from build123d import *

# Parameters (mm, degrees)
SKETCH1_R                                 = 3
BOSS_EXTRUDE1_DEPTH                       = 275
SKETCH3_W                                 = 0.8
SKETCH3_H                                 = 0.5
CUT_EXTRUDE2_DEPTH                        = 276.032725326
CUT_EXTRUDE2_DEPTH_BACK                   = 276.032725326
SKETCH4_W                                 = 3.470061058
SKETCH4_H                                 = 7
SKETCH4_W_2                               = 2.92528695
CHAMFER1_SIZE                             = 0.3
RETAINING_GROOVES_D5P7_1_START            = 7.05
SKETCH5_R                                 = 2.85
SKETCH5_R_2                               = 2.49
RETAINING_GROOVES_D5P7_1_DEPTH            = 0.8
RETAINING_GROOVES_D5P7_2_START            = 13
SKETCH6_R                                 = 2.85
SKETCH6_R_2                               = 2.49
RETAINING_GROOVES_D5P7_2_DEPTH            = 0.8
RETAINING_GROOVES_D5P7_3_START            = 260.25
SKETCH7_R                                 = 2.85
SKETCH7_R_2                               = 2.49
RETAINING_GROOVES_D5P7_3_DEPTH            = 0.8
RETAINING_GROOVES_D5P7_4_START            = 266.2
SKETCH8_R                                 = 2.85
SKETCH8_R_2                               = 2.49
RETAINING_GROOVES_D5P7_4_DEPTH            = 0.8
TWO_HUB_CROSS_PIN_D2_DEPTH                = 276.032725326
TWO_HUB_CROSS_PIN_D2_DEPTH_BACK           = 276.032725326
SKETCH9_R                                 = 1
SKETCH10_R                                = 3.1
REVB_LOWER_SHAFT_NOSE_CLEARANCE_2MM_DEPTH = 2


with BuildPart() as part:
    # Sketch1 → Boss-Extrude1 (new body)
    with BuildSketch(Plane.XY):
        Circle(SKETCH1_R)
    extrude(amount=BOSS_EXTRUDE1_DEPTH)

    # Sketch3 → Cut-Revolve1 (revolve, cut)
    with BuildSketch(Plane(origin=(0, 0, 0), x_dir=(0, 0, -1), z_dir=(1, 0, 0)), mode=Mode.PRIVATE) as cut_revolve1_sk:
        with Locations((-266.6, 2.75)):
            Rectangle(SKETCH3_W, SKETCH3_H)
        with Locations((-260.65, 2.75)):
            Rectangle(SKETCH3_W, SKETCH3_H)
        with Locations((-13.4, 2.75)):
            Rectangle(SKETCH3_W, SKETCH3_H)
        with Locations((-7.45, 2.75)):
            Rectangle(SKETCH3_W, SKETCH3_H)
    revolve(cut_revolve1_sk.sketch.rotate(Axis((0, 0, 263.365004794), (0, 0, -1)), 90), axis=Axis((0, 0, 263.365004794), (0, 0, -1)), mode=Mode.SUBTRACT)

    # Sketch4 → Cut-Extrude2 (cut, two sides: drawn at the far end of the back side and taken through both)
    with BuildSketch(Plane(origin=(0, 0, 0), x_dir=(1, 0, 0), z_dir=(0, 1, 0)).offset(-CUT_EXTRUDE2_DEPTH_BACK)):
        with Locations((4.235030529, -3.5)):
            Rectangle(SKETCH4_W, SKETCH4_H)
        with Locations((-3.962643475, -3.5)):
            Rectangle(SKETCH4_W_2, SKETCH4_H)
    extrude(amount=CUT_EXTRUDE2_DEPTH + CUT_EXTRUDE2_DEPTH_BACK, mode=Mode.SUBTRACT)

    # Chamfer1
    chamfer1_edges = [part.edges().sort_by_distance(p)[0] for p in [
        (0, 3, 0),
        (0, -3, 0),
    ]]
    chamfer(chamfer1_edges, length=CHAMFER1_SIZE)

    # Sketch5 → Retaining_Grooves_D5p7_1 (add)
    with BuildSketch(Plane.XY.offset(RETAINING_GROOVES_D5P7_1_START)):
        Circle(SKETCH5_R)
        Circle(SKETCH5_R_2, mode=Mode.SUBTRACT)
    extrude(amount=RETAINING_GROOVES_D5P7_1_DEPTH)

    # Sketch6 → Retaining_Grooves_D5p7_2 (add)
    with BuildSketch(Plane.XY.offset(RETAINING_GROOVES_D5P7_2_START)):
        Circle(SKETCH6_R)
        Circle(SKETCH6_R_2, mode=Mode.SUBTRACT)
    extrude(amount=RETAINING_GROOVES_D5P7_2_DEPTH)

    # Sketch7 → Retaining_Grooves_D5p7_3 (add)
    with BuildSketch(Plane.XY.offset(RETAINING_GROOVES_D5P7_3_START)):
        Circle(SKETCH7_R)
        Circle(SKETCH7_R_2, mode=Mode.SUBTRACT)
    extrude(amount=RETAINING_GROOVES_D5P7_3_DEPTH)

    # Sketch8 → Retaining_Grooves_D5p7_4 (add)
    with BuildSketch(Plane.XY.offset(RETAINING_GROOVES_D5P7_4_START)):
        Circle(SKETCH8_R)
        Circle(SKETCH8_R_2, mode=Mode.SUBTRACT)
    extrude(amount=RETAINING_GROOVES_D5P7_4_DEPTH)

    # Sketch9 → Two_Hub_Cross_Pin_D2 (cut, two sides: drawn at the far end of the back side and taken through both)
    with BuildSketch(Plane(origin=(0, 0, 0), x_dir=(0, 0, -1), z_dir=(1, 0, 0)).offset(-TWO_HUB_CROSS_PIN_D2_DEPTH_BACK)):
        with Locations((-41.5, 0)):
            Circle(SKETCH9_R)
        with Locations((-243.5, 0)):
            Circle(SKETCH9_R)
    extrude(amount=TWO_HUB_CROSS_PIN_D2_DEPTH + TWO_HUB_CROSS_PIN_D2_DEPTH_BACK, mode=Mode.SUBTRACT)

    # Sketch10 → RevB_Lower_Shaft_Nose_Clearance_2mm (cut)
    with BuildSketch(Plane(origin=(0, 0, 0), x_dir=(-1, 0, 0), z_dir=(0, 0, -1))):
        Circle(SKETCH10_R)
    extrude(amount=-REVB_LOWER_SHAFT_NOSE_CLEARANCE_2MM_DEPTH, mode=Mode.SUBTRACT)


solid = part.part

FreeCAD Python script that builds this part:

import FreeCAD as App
import Part
import Sketcher
from FreeCAD import Vector


def edges_at(feature, points):
    """Names of the edges that pass closest to the given points."""
    edges = feature.Shape.Edges
    near = lambda p: min(range(len(edges)), key=lambda i: edges[i].distToShape(Part.Vertex(*p))[0])
    return sorted({f"Edge{near(p) + 1}" for p in points})

doc = App.newDocument("Part")
body = doc.addObject("PartDesign::Body", "Body")

sketch1 = body.newObject("Sketcher::SketchObject", "Sketch")
sketch1.AttachmentSupport = (doc.getObject("XY_Plane"), [""])
sketch1.MapMode = "FlatFace"
sketch1.addGeometry(Part.Circle(Vector(0, 0, 0), Vector(0, 0, 1), 3), False)
sketch1.addConstraint([
    Sketcher.Constraint("Coincident", 0, 3, -1, 1),
    Sketcher.Constraint("Diameter", 0, 6.0),
])
pad1 = body.newObject("PartDesign::Pad", "Pad")
pad1.Profile = sketch1
pad1.Length = 275

sketch2 = body.newObject("Sketcher::SketchObject", "Sketch001")
sketch2.AttachmentSupport = (doc.getObject("YZ_Plane"), [""])
sketch2.MapMode = "FlatFace"
sketch2.addGeometry([
    Part.LineSegment(Vector(3, 267, 0), Vector(2.5, 267, 0)),
    Part.LineSegment(Vector(2.5, 267, 0), Vector(2.5, 266.2, 0)),
    Part.LineSegment(Vector(2.5, 266.2, 0), Vector(3, 266.2, 0)),
    Part.LineSegment(Vector(3, 266.2, 0), Vector(3, 267, 0)),
    Part.LineSegment(Vector(3, 261.05, 0), Vector(2.5, 261.05, 0)),
    Part.LineSegment(Vector(2.5, 261.05, 0), Vector(2.5, 260.25, 0)),
    Part.LineSegment(Vector(2.5, 260.25, 0), Vector(3, 260.25, 0)),
    Part.LineSegment(Vector(3, 260.25, 0), Vector(3, 261.05, 0)),
    Part.LineSegment(Vector(3, 13.8, 0), Vector(2.5, 13.8, 0)),
    Part.LineSegment(Vector(2.5, 13.8, 0), Vector(2.5, 13, 0)),
    Part.LineSegment(Vector(2.5, 13, 0), Vector(3, 13, 0)),
    Part.LineSegment(Vector(3, 13, 0), Vector(3, 13.8, 0)),
    Part.LineSegment(Vector(3, 7.85, 0), Vector(2.5, 7.85, 0)),
    Part.LineSegment(Vector(2.5, 7.85, 0), Vector(2.5, 7.05, 0)),
    Part.LineSegment(Vector(2.5, 7.05, 0), Vector(3, 7.05, 0)),
    Part.LineSegment(Vector(3, 7.05, 0), Vector(3, 7.85, 0)),
], False)
sketch2.addConstraint([
    Sketcher.Constraint("Coincident", 0, 2, 1, 1),
    Sketcher.Constraint("Coincident", 1, 2, 2, 1),
    Sketcher.Constraint("Coincident", 2, 2, 3, 1),
    Sketcher.Constraint("Coincident", 3, 2, 0, 1),
    Sketcher.Constraint("Coincident", 4, 2, 5, 1),
    Sketcher.Constraint("Coincident", 5, 2, 6, 1),
    Sketcher.Constraint("Coincident", 6, 2, 7, 1),
    Sketcher.Constraint("Coincident", 7, 2, 4, 1),
    Sketcher.Constraint("Coincident", 8, 2, 9, 1),
    Sketcher.Constraint("Coincident", 9, 2, 10, 1),
    Sketcher.Constraint("Coincident", 10, 2, 11, 1),
    Sketcher.Constraint("Coincident", 11, 2, 8, 1),
    Sketcher.Constraint("Coincident", 12, 2, 13, 1),
    Sketcher.Constraint("Coincident", 13, 2, 14, 1),
    Sketcher.Constraint("Coincident", 14, 2, 15, 1),
    Sketcher.Constraint("Coincident", 15, 2, 12, 1),
    Sketcher.Constraint("Horizontal", 0),
    Sketcher.Constraint("Vertical", 1),
    Sketcher.Constraint("Horizontal", 2),
    Sketcher.Constraint("Vertical", 3),
    Sketcher.Constraint("Horizontal", 4),
    Sketcher.Constraint("Vertical", 5),
    Sketcher.Constraint("Horizontal", 6),
    Sketcher.Constraint("Vertical", 7),
    Sketcher.Constraint("Horizontal", 8),
    Sketcher.Constraint("Vertical", 9),
    Sketcher.Constraint("Horizontal", 10),
    Sketcher.Constraint("Vertical", 11),
    Sketcher.Constraint("Horizontal", 12),
    Sketcher.Constraint("Vertical", 13),
    Sketcher.Constraint("Horizontal", 14),
    Sketcher.Constraint("Vertical", 15),
    Sketcher.Constraint("Vertical", 1, 2, 4, 2),
    Sketcher.Constraint("Vertical", 3, 2, 6, 2),
    Sketcher.Constraint("Vertical", 5, 2, 8, 2),
    Sketcher.Constraint("Vertical", 7, 2, 10, 2),
    Sketcher.Constraint("Vertical", 9, 2, 12, 2),
    Sketcher.Constraint("Vertical", 11, 2, 14, 2),
    Sketcher.Constraint("Equal", 3, 5),
    Sketcher.Constraint("Equal", 7, 9),
    Sketcher.Constraint("Equal", 11, 13),
    Sketcher.Constraint("DistanceX", 0, 2, 0, 1, 0.5),
    Sketcher.Constraint("DistanceY", 1, 2, 1, 1, 0.8),
    Sketcher.Constraint("DistanceY", -1, 1, 0, 2, 267.0),
    Sketcher.Constraint("DistanceX", -1, 1, 2, 2, 3.0),
    Sketcher.Constraint("DistanceY", -1, 1, 9, 2, 13.0),
    Sketcher.Constraint("DistanceY", 12, 2, 5, 2, 252.4),
    Sketcher.Constraint("DistanceY", -1, 1, 4, 2, 261.05),
])
groove = body.newObject("PartDesign::Groove", "Groove")
groove.Profile = sketch2
groove.ReferenceAxis = (sketch2, ["V_Axis"])
groove.Angle = 360

sketch3 = body.newObject("Sketcher::SketchObject", "Sketch002")
sketch3.AttachmentSupport = (doc.getObject("XZ_Plane"), [""])
sketch3.MapMode = "FlatFace"
sketch3.addGeometry([
    Part.LineSegment(Vector(2.5, 0, 0), Vector(2.5, 7, 0)),
    Part.LineSegment(Vector(2.5, 7, 0), Vector(5.970061, 7, 0)),
    Part.LineSegment(Vector(5.970061, 7, 0), Vector(5.970061, 0, 0)),
    Part.LineSegment(Vector(5.970061, 0, 0), Vector(2.5, 0, 0)),
    Part.LineSegment(Vector(-5.425287, 0, 0), Vector(-5.425287, 7, 0)),
    Part.LineSegment(Vector(-5.425287, 7, 0), Vector(-2.5, 7, 0)),
    Part.LineSegment(Vector(-2.5, 7, 0), Vector(-2.5, 0, 0)),
    Part.LineSegment(Vector(-2.5, 0, 0), Vector(-5.425287, 0, 0)),
], False)
sketch3.addConstraint([
    Sketcher.Constraint("Coincident", 0, 2, 1, 1),
    Sketcher.Constraint("Coincident", 1, 2, 2, 1),
    Sketcher.Constraint("Coincident", 2, 2, 3, 1),
    Sketcher.Constraint("Coincident", 3, 2, 0, 1),
    Sketcher.Constraint("Coincident", 4, 2, 5, 1),
    Sketcher.Constraint("Coincident", 5, 2, 6, 1),
    Sketcher.Constraint("Coincident", 6, 2, 7, 1),
    Sketcher.Constraint("Coincident", 7, 2, 4, 1),
    Sketcher.Constraint("Vertical", 0),
    Sketcher.Constraint("Horizontal", 1),
    Sketcher.Constraint("Vertical", 2),
    Sketcher.Constraint("Horizontal", 3),
    Sketcher.Constraint("Vertical", 4),
    Sketcher.Constraint("Horizontal", 5),
    Sketcher.Constraint("Vertical", 6),
    Sketcher.Constraint("Horizontal", 7),
    Sketcher.Constraint("Symmetric", 3, 2, 6, 2, -1, 1),
    Sketcher.Constraint("PointOnObject", 2, 2, -1),
    Sketcher.Constraint("Horizontal", 1, 2, 4, 2),
    Sketcher.Constraint("DistanceY", 0, 1, 0, 2, 7.0),
    Sketcher.Constraint("DistanceX", 5, 2, 0, 2, 5.0),
    Sketcher.Constraint("DistanceX", 1, 1, 1, 2, 3.470061),
    Sketcher.Constraint("DistanceX", 5, 1, 5, 2, 2.925287),
])
pocket1 = body.newObject("PartDesign::Pocket", "Pocket")
pocket1.Profile = sketch3
pocket1.Type = "ThroughAll"
pocket1.Midplane = True
doc.recompute()

chamfer = body.newObject("PartDesign::Chamfer", "Chamfer")
chamfer.Base = (pocket1, edges_at(pocket1, [(0, 3, 0), (0, -3, 0)]))
chamfer.Size = 0.3

sketch4 = body.newObject("Sketcher::SketchObject", "Sketch003")
sketch4.AttachmentSupport = (doc.getObject("XY_Plane"), [""])
sketch4.MapMode = "FlatFace"
sketch4.AttachmentOffset = App.Placement(Vector(0, 0, 7.05), App.Rotation())
sketch4.addGeometry([
    Part.Circle(Vector(0, 0, 0), Vector(0, 0, 1), 2.85),
    Part.Circle(Vector(0, 0, 0), Vector(0, 0, 1), 2.49),
], False)
sketch4.addConstraint([
    Sketcher.Constraint("Coincident", 0, 3, -1, 1),
    Sketcher.Constraint("Coincident", 1, 3, -1, 1),
    Sketcher.Constraint("Diameter", 0, 5.7),
    Sketcher.Constraint("Diameter", 1, 4.98),
])
pad2 = body.newObject("PartDesign::Pad", "Pad001")
pad2.Profile = sketch4
pad2.Length = 0.8

sketch5 = body.newObject("Sketcher::SketchObject", "Sketch004")
sketch5.AttachmentSupport = (doc.getObject("XY_Plane"), [""])
sketch5.MapMode = "FlatFace"
sketch5.AttachmentOffset = App.Placement(Vector(0, 0, 13), App.Rotation())
sketch5.addGeometry([
    Part.Circle(Vector(0, 0, 0), Vector(0, 0, 1), 2.85),
    Part.Circle(Vector(0, 0, 0), Vector(0, 0, 1), 2.49),
], False)
sketch5.addConstraint([
    Sketcher.Constraint("Coincident", 0, 3, -1, 1),
    Sketcher.Constraint("Coincident", 1, 3, -1, 1),
    Sketcher.Constraint("Diameter", 0, 5.7),
    Sketcher.Constraint("Diameter", 1, 4.98),
])
pad3 = body.newObject("PartDesign::Pad", "Pad002")
pad3.Profile = sketch5
pad3.Length = 0.8

sketch6 = body.newObject("Sketcher::SketchObject", "Sketch005")
sketch6.AttachmentSupport = (doc.getObject("XY_Plane"), [""])
sketch6.MapMode = "FlatFace"
sketch6.AttachmentOffset = App.Placement(Vector(0, 0, 260.25), App.Rotation())
sketch6.addGeometry([
    Part.Circle(Vector(0, 0, 0), Vector(0, 0, 1), 2.85),
    Part.Circle(Vector(0, 0, 0), Vector(0, 0, 1), 2.49),
], False)
sketch6.addConstraint([
    Sketcher.Constraint("Coincident", 0, 3, -1, 1),
    Sketcher.Constraint("Coincident", 1, 3, -1, 1),
    Sketcher.Constraint("Diameter", 0, 5.7),
    Sketcher.Constraint("Diameter", 1, 4.98),
])
pad4 = body.newObject("PartDesign::Pad", "Pad003")
pad4.Profile = sketch6
pad4.Length = 0.8

sketch7 = body.newObject("Sketcher::SketchObject", "Sketch006")
sketch7.AttachmentSupport = (doc.getObject("XY_Plane"), [""])
sketch7.MapMode = "FlatFace"
sketch7.AttachmentOffset = App.Placement(Vector(0, 0, 266.2), App.Rotation())
sketch7.addGeometry([
    Part.Circle(Vector(0, 0, 0), Vector(0, 0, 1), 2.85),
    Part.Circle(Vector(0, 0, 0), Vector(0, 0, 1), 2.49),
], False)
sketch7.addConstraint([
    Sketcher.Constraint("Coincident", 0, 3, -1, 1),
    Sketcher.Constraint("Coincident", 1, 3, -1, 1),
    Sketcher.Constraint("Diameter", 0, 5.7),
    Sketcher.Constraint("Diameter", 1, 4.98),
])
pad5 = body.newObject("PartDesign::Pad", "Pad004")
pad5.Profile = sketch7
pad5.Length = 0.8

sketch8 = body.newObject("Sketcher::SketchObject", "Sketch007")
sketch8.AttachmentSupport = (doc.getObject("YZ_Plane"), [""])
sketch8.MapMode = "FlatFace"
sketch8.addGeometry([
    Part.Circle(Vector(0, 41.5, 0), Vector(0, 0, 1), 1),
    Part.Circle(Vector(0, 243.5, 0), Vector(0, 0, 1), 1),
], False)
sketch8.addConstraint([
    Sketcher.Constraint("Equal", 0, 1),
    Sketcher.Constraint("PointOnObject", 0, 3, -2),
    Sketcher.Constraint("PointOnObject", 1, 3, -2),
    Sketcher.Constraint("Diameter", 0, 2.0),
    Sketcher.Constraint("DistanceY", 0, 3, 1, 3, 202.0),
    Sketcher.Constraint("DistanceY", -1, 1, 0, 3, 41.5),
])
pocket2 = body.newObject("PartDesign::Pocket", "Pocket001")
pocket2.Profile = sketch8
pocket2.Type = "ThroughAll"
pocket2.Midplane = True

sketch9 = body.newObject("Sketcher::SketchObject", "Sketch008")
sketch9.AttachmentSupport = (doc.getObject("XY_Plane"), [""])
sketch9.MapMode = "FlatFace"
sketch9.addGeometry(Part.Circle(Vector(0, 0, 0), Vector(0, 0, 1), 3.1), False)
sketch9.addConstraint([
    Sketcher.Constraint("Coincident", 0, 3, -1, 1),
    Sketcher.Constraint("Diameter", 0, 6.2),
])
pocket3 = body.newObject("PartDesign::Pocket", "Pocket002")
pocket3.Profile = sketch9
pocket3.Length = 2
pocket3.Reversed = True

doc.recompute()
